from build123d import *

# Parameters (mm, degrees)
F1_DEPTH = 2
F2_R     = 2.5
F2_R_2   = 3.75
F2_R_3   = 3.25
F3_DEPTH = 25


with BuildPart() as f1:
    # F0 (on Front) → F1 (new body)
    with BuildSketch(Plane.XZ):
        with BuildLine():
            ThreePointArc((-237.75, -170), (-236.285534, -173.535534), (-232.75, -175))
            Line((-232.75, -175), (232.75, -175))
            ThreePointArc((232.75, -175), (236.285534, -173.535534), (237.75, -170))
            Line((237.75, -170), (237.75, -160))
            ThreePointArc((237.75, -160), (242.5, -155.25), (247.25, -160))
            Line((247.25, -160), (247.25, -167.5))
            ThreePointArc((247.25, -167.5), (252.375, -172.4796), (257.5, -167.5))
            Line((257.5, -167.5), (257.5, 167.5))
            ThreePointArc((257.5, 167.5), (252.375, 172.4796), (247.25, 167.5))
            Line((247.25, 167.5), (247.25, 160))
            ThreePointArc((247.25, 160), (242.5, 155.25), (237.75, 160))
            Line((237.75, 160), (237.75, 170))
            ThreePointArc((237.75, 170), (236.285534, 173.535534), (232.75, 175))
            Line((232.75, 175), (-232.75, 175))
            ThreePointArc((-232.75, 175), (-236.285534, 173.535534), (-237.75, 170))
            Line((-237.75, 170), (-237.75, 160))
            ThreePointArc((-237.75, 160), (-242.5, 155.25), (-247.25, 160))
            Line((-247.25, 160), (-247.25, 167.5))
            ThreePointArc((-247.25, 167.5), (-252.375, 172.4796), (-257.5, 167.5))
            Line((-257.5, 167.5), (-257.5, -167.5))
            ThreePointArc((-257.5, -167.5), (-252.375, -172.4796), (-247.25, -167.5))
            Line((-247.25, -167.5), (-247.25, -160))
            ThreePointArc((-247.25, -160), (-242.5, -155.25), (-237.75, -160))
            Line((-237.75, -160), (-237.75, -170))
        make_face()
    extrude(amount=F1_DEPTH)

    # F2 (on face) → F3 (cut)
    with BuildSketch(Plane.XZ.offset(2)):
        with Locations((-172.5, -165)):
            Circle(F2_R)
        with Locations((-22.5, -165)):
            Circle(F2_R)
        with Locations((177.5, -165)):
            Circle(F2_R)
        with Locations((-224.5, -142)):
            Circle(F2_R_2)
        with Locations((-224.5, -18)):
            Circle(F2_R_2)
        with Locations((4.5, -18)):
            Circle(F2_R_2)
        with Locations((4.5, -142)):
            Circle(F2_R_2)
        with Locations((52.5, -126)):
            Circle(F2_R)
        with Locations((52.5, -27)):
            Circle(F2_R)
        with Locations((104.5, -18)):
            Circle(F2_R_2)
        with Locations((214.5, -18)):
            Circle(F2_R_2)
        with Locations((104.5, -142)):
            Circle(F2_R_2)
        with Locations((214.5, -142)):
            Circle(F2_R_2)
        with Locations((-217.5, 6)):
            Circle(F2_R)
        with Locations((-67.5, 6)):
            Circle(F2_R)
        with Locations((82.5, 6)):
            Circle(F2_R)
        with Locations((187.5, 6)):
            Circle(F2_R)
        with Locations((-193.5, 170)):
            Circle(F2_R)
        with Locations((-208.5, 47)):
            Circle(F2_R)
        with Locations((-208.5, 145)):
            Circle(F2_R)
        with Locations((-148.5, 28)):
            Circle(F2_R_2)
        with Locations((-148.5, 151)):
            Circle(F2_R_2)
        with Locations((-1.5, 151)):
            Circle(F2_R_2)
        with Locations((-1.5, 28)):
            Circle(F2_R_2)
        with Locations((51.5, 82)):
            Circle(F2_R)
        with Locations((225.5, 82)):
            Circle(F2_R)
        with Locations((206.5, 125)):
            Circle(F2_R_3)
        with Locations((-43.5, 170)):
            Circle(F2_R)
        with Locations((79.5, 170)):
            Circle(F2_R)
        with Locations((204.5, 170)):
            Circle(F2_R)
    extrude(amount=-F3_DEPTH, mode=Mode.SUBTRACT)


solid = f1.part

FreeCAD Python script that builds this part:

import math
import FreeCAD as App
import Part
import Sketcher
from FreeCAD import Vector
Q = App.Units.Quantity

doc = App.newDocument("Part")
body = doc.addObject("PartDesign::Body", "Body")

sketch1 = body.newObject("Sketcher::SketchObject", "Sketch")
sketch1.AttachmentSupport = (doc.getObject("XZ_Plane"), [""])
sketch1.MapMode = "FlatFace"
sketch1.addGeometry(Part.ArcOfCircle(Part.Circle(Vector(-232.8, -170, 0), Vector(0, 0, 1), 5), math.radians(180), math.radians(270)), False)
sketch1.addGeometry(Part.LineSegment(Vector(-232.8, -175, 0), Vector(232.8, -175, 0)), False)
sketch1.addGeometry(Part.ArcOfCircle(Part.Circle(Vector(232.8, -170, 0), Vector(0, 0, 1), 5), math.radians(-90), math.radians(0)), False)
sketch1.addGeometry(Part.LineSegment(Vector(237.8, -170, 0), Vector(237.8, -160, 0)), False)
sketch1.addGeometry(Part.ArcOfCircle(Part.Circle(Vector(242.5, -160, 0), Vector(0, 0, 1), 4.8), math.radians(0), math.radians(180)), False)
sketch1.addGeometry(Part.LineSegment(Vector(247.2, -160, 0), Vector(247.2, -167.5, 0)), False)
sketch1.addGeometry(Part.ArcOfCircle(Part.Circle(Vector(252.4, -167.4, 0), Vector(0, 0, 1), 5.1), math.radians(-178), math.radians(-2)), False)
sketch1.addGeometry(Part.LineSegment(Vector(257.5, -167.5, 0), Vector(257.5, 167.5, 0)), False)
sketch1.addGeometry(Part.ArcOfCircle(Part.Circle(Vector(252.4, 167.4, 0), Vector(0, 0, 1), 5.1), math.radians(2), math.radians(178)), False)
sketch1.addGeometry(Part.LineSegment(Vector(247.2, 167.5, 0), Vector(247.2, 160, 0)), False)
sketch1.addGeometry(Part.ArcOfCircle(Part.Circle(Vector(242.5, 160, 0), Vector(0, 0, 1), 4.8), math.radians(180), math.radians(360)), False)
sketch1.addGeometry(Part.LineSegment(Vector(237.8, 160, 0), Vector(237.8, 170, 0)), False)
sketch1.addGeometry(Part.ArcOfCircle(Part.Circle(Vector(232.8, 170, 0), Vector(0, 0, 1), 5), math.radians(0), math.radians(90)), False)
sketch1.addGeometry(Part.LineSegment(Vector(232.8, 175, 0), Vector(-232.8, 175, 0)), False)
sketch1.addGeometry(Part.ArcOfCircle(Part.Circle(Vector(-232.8, 170, 0), Vector(0, 0, 1), 5), math.radians(90), math.radians(180)), False)
sketch1.addGeometry(Part.LineSegment(Vector(-237.8, 170, 0), Vector(-237.8, 160, 0)), False)
sketch1.addGeometry(Part.ArcOfCircle(Part.Circle(Vector(-242.5, 160, 0), Vector(0, 0, 1), 4.8), math.radians(180), math.radians(360)), False)
sketch1.addGeometry(Part.LineSegment(Vector(-247.2, 160, 0), Vector(-247.2, 167.5, 0)), False)
sketch1.addGeometry(Part.ArcOfCircle(Part.Circle(Vector(-252.4, 167.4, 0), Vector(0, 0, 1), 5.1), math.radians(2), math.radians(178)), False)
sketch1.addGeometry(Part.LineSegment(Vector(-257.5, 167.5, 0), Vector(-257.5, -167.5, 0)), False)
sketch1.addGeometry(Part.ArcOfCircle(Part.Circle(Vector(-252.4, -167.4, 0), Vector(0, 0, 1), 5.1), math.radians(-178), math.radians(-2)), False)
sketch1.addGeometry(Part.LineSegment(Vector(-247.2, -167.5, 0), Vector(-247.2, -160, 0)), False)
sketch1.addGeometry(Part.ArcOfCircle(Part.Circle(Vector(-242.5, -160, 0), Vector(0, 0, 1), 4.8), math.radians(0), math.radians(180)), False)
sketch1.addGeometry(Part.LineSegment(Vector(-237.8, -160, 0), Vector(-237.8, -170, 0)), False)
sketch1.addConstraint(Sketcher.Constraint("Tangent", 0, 2, 1, 1))
sketch1.addConstraint(Sketcher.Constraint("Tangent", 1, 2, 2, 1))
sketch1.addConstraint(Sketcher.Constraint("Tangent", 2, 2, 3, 1))
sketch1.addConstraint(Sketcher.Constraint("Tangent", 3, 2, 4, 2))
sketch1.addConstraint(Sketcher.Constraint("Tangent", 4, 1, 5, 1))
sketch1.addConstraint(Sketcher.Constraint("Coincident", 5, 2, 6, 1))
sketch1.addConstraint(Sketcher.Constraint("Coincident", 6, 2, 7, 1))
sketch1.addConstraint(Sketcher.Constraint("Coincident", 7, 2, 8, 1))
sketch1.addConstraint(Sketcher.Constraint("Coincident", 8, 2, 9, 1))
sketch1.addConstraint(Sketcher.Constraint("Tangent", 9, 2, 10, 2))
sketch1.addConstraint(Sketcher.Constraint("Tangent", 10, 1, 11, 1))
sketch1.addConstraint(Sketcher.Constraint("Tangent", 11, 2, 12, 1))
sketch1.addConstraint(Sketcher.Constraint("Tangent", 12, 2, 13, 1))
sketch1.addConstraint(Sketcher.Constraint("Tangent", 13, 2, 14, 1))
sketch1.addConstraint(Sketcher.Constraint("Tangent", 14, 2, 15, 1))
sketch1.addConstraint(Sketcher.Constraint("Tangent", 15, 2, 16, 2))
sketch1.addConstraint(Sketcher.Constraint("Tangent", 16, 1, 17, 1))
sketch1.addConstraint(Sketcher.Constraint("Coincident", 17, 2, 18, 1))
sketch1.addConstraint(Sketcher.Constraint("Coincident", 18, 2, 19, 1))
sketch1.addConstraint(Sketcher.Constraint("Coincident", 19, 2, 20, 1))
sketch1.addConstraint(Sketcher.Constraint("Coincident", 20, 2, 21, 1))
sketch1.addConstraint(Sketcher.Constraint("Tangent", 21, 2, 22, 2))
sketch1.addConstraint(Sketcher.Constraint("Tangent", 22, 1, 23, 1))
sketch1.addConstraint(Sketcher.Constraint("Tangent", 23, 2, 0, 1))
sketch1.addConstraint(Sketcher.Constraint("Horizontal", 1))
sketch1.addConstraint(Sketcher.Constraint("Vertical", 3))
sketch1.addConstraint(Sketcher.Constraint("Vertical", 5))
sketch1.addConstraint(Sketcher.Constraint("Vertical", 7))
sketch1.addConstraint(Sketcher.Constraint("Vertical", 9))
sketch1.addConstraint(Sketcher.Constraint("Vertical", 11))
sketch1.addConstraint(Sketcher.Constraint("Horizontal", 13))
sketch1.addConstraint(Sketcher.Constraint("Vertical", 15))
sketch1.addConstraint(Sketcher.Constraint("Vertical", 17))
sketch1.addConstraint(Sketcher.Constraint("Vertical", 19))
sketch1.addConstraint(Sketcher.Constraint("Vertical", 21))
sketch1.addConstraint(Sketcher.Constraint("Vertical", 23))
sketch1.addConstraint(Sketcher.Constraint("Equal", 0, 2))
sketch1.addConstraint(Sketcher.Constraint("Equal", 6, 8))
sketch1.addConstraint(Sketcher.Constraint("Equal", 4, 10))
sketch1.addConstraint(Sketcher.Constraint("Equal", 2, 12))
sketch1.addConstraint(Sketcher.Constraint("Equal", 12, 14))
sketch1.addConstraint(Sketcher.Constraint("Equal", 10, 16))
sketch1.addConstraint(Sketcher.Constraint("Equal", 8, 18))
sketch1.addConstraint(Sketcher.Constraint("Equal", 18, 20))
sketch1.addConstraint(Sketcher.Constraint("Equal", 16, 22))
sketch1.addConstraint(Sketcher.Constraint("Symmetric", 0, 3, 12, 3, -1, 1))
sketch1.addConstraint(Sketcher.Constraint("Symmetric", 4, 3, 16, 3, -1, 1))
sketch1.addConstraint(Sketcher.Constraint("Symmetric", 6, 3, 18, 3, -1, 1))
sketch1.addConstraint(Sketcher.Constraint("Symmetric", 8, 3, 20, 3, -1, 1))
sketch1.addConstraint(Sketcher.Constraint("Symmetric", 10, 3, 16, 3, -2))
sketch1.addConstraint(Sketcher.Constraint("Symmetric", 8, 3, 18, 3, -2))
sketch1.addConstraint(Sketcher.Constraint("Horizontal", 4, 3, 22, 3))
sketch1.addConstraint(Sketcher.Constraint("Horizontal", 5, 2, 6, 2))
sketch1.addConstraint(Sketcher.Constraint("Horizontal", 17, 2, 18, 2))
sketch1.addConstraint(Sketcher.Constraint("Radius", 0, Q("5 mm")))
sketch1.addConstraint(Sketcher.Constraint("DistanceY", 3, 1, 3, 2, Q("10 mm")))
sketch1.addConstraint(Sketcher.Constraint("DistanceY", 7, 1, 7, 2, Q("335 mm")))
sketch1.addConstraint(Sketcher.Constraint("Radius", 4, Q("4.75 mm")))
sketch1.addConstraint(Sketcher.Constraint("DistanceX", 1, 1, 1, 2, Q("465.5 mm")))
sketch1.addConstraint(Sketcher.Constraint("DistanceY", 5, 2, 5, 1, Q("7.5 mm")))
sketch1.addConstraint(Sketcher.Constraint("DistanceX", 4, 3, 6, 2, Q("15 mm")))
sketch1.addConstraint(Sketcher.Constraint("Radius", 6, Q("5.127123 mm")))
pad1 = body.newObject("PartDesign::Pad", "Pad")
pad1.Profile = sketch1
pad1.Length = 2

sketch2 = body.newObject("Sketcher::SketchObject", "Sketch001")
sketch2.AttachmentSupport = (doc.getObject("XZ_Plane"), [""])
sketch2.MapMode = "FlatFace"
sketch2.AttachmentOffset = App.Placement(Vector(0, 0, 2), App.Rotation())
sketch2.addGeometry(Part.Circle(Vector(-172.5, -165, 0), Vector(0, 0, 1), 2.5), False)
sketch2.addGeometry(Part.Circle(Vector(-22.5, -165, 0), Vector(0, 0, 1), 2.5), False)
sketch2.addGeometry(Part.Circle(Vector(177.5, -165, 0), Vector(0, 0, 1), 2.5), False)
sketch2.addGeometry(Part.Circle(Vector(-224.5, -142, 0), Vector(0, 0, 1), 3.8), False)
sketch2.addGeometry(Part.Circle(Vector(-224.5, -18, 0), Vector(0, 0, 1), 3.8), False)
sketch2.addGeometry(Part.Circle(Vector(4.5, -18, 0), Vector(0, 0, 1), 3.8), False)
sketch2.addGeometry(Part.Circle(Vector(4.5, -142, 0), Vector(0, 0, 1), 3.8), False)
sketch2.addGeometry(Part.Circle(Vector(52.5, -126, 0), Vector(0, 0, 1), 2.5), False)
sketch2.addGeometry(Part.Circle(Vector(52.5, -27, 0), Vector(0, 0, 1), 2.5), False)
sketch2.addGeometry(Part.Circle(Vector(104.5, -18, 0), Vector(0, 0, 1), 3.8), False)
sketch2.addGeometry(Part.Circle(Vector(214.5, -18, 0), Vector(0, 0, 1), 3.8), False)
sketch2.addGeometry(Part.Circle(Vector(104.5, -142, 0), Vector(0, 0, 1), 3.8), False)
sketch2.addGeometry(Part.Circle(Vector(214.5, -142, 0), Vector(0, 0, 1), 3.8), False)
sketch2.addGeometry(Part.Circle(Vector(-217.5, 6, 0), Vector(0, 0, 1), 2.5), False)
sketch2.addGeometry(Part.Circle(Vector(-67.5, 6, 0), Vector(0, 0, 1), 2.5), False)
sketch2.addGeometry(Part.Circle(Vector(82.5, 6, 0), Vector(0, 0, 1), 2.5), False)
sketch2.addGeometry(Part.Circle(Vector(187.5, 6, 0), Vector(0, 0, 1), 2.5), False)
sketch2.addGeometry(Part.Circle(Vector(-193.5, 170, 0), Vector(0, 0, 1), 2.5), False)
sketch2.addGeometry(Part.Circle(Vector(-208.5, 47, 0), Vector(0, 0, 1), 2.5), False)
sketch2.addGeometry(Part.Circle(Vector(-208.5, 145, 0), Vector(0, 0, 1), 2.5), False)
sketch2.addGeometry(Part.Circle(Vector(-148.5, 28, 0), Vector(0, 0, 1), 3.8), False)
sketch2.addGeometry(Part.Circle(Vector(-148.5, 151, 0), Vector(0, 0, 1), 3.8), False)
sketch2.addGeometry(Part.Circle(Vector(-1.5, 151, 0), Vector(0, 0, 1), 3.8), False)
sketch2.addGeometry(Part.Circle(Vector(-1.5, 28, 0), Vector(0, 0, 1), 3.8), False)
sketch2.addGeometry(Part.Circle(Vector(51.5, 82, 0), Vector(0, 0, 1), 2.5), False)
sketch2.addGeometry(Part.Circle(Vector(225.5, 82, 0), Vector(0, 0, 1), 2.5), False)
sketch2.addGeometry(Part.Circle(Vector(206.5, 125, 0), Vector(0, 0, 1), 3.2), False)
sketch2.addGeometry(Part.Circle(Vector(-43.5, 170, 0), Vector(0, 0, 1), 2.5), False)
sketch2.addGeometry(Part.Circle(Vector(79.5, 170, 0), Vector(0, 0, 1), 2.5), False)
sketch2.addGeometry(Part.Circle(Vector(204.5, 170, 0), Vector(0, 0, 1), 2.5), False)
sketch2.addConstraint(Sketcher.Constraint("Equal", 0, 1))
sketch2.addConstraint(Sketcher.Constraint("Equal", 1, 2))
sketch2.addConstraint(Sketcher.Constraint("Equal", 3, 4))
sketch2.addConstraint(Sketcher.Constraint("Equal", 4, 5))
sketch2.addConstraint(Sketcher.Constraint("Equal", 5, 6))
sketch2.addConstraint(Sketcher.Constraint("Equal", 2, 7))
sketch2.addConstraint(Sketcher.Constraint("Equal", 7, 8))
sketch2.addConstraint(Sketcher.Constraint("Equal", 6, 9))
sketch2.addConstraint(Sketcher.Constraint("Equal", 9, 10))
sketch2.addConstraint(Sketcher.Constraint("Equal", 10, 11))
sketch2.addConstraint(Sketcher.Constraint("Equal", 11, 12))
sketch2.addConstraint(Sketcher.Constraint("Equal", 8, 13))
sketch2.addConstraint(Sketcher.Constraint("Equal", 13, 14))
sketch2.addConstraint(Sketcher.Constraint("Equal", 14, 15))
sketch2.addConstraint(Sketcher.Constraint("Equal", 15, 16))
sketch2.addConstraint(Sketcher.Constraint("Equal", 16, 17))
sketch2.addConstraint(Sketcher.Constraint("Equal", 17, 18))
sketch2.addConstraint(Sketcher.Constraint("Equal", 18, 19))
sketch2.addConstraint(Sketcher.Constraint("Equal", 12, 20))
sketch2.addConstraint(Sketcher.Constraint("Equal", 20, 21))
sketch2.addConstraint(Sketcher.Constraint("Equal", 21, 22))
sketch2.addConstraint(Sketcher.Constraint("Equal", 22, 23))
sketch2.addConstraint(Sketcher.Constraint("Equal", 19, 24))
sketch2.addConstraint(Sketcher.Constraint("Equal", 24, 25))
sketch2.addConstraint(Sketcher.Constraint("Equal", 25, 27))
sketch2.addConstraint(Sketcher.Constraint("Equal", 27, 28))
sketch2.addConstraint(Sketcher.Constraint("Equal", 28, 29))
sketch2.addConstraint(Sketcher.Constraint("Horizontal", 0, 3, 1, 3))
sketch2.addConstraint(Sketcher.Constraint("Horizontal", 1, 3, 2, 3))
sketch2.addConstraint(Sketcher.Constraint("Horizontal", 4, 3, 5, 3))
sketch2.addConstraint(Sketcher.Constraint("Horizontal", 3, 3, 6, 3))
sketch2.addConstraint(Sketcher.Constraint("Horizontal", 5, 3, 9, 3))
sketch2.addConstraint(Sketcher.Constraint("Horizontal", 9, 3, 10, 3))
sketch2.addConstraint(Sketcher.Constraint("Horizontal", 6, 3, 11, 3))
sketch2.addConstraint(Sketcher.Constraint("Horizontal", 11, 3, 12, 3))
sketch2.addConstraint(Sketcher.Constraint("Horizontal", 13, 3, 14, 3))
sketch2.addConstraint(Sketcher.Constraint("Horizontal", 14, 3, 15, 3))
sketch2.addConstraint(Sketcher.Constraint("Horizontal", 15, 3, 16, 3))
sketch2.addConstraint(Sketcher.Constraint("Horizontal", 21, 3, 22, 3))
sketch2.addConstraint(Sketcher.Constraint("Horizontal", 20, 3, 23, 3))
sketch2.addConstraint(Sketcher.Constraint("Horizontal", 24, 3, 25, 3))
sketch2.addConstraint(Sketcher.Constraint("Horizontal", 17, 3, 27, 3))
sketch2.addConstraint(Sketcher.Constraint("Horizontal", 27, 3, 28, 3))
sketch2.addConstraint(Sketcher.Constraint("Horizontal", 28, 3, 29, 3))
sketch2.addConstraint(Sketcher.Constraint("Vertical", 3, 3, 4, 3))
sketch2.addConstraint(Sketcher.Constraint("Vertical", 5, 3, 6, 3))
sketch2.addConstraint(Sketcher.Constraint("Vertical", 7, 3, 8, 3))
sketch2.addConstraint(Sketcher.Constraint("Vertical", 9, 3, 11, 3))
sketch2.addConstraint(Sketcher.Constraint("Vertical", 10, 3, 12, 3))
sketch2.addConstraint(Sketcher.Constraint("Vertical", 18, 3, 19, 3))
sketch2.addConstraint(Sketcher.Constraint("Vertical", 20, 3, 21, 3))
sketch2.addConstraint(Sketcher.Constraint("Vertical", 22, 3, 23, 3))
sketch2.addConstraint(Sketcher.Constraint("Diameter", 0, Q("5 mm")))
sketch2.addConstraint(Sketcher.Constraint("Diameter", 3, Q("7.5 mm")))
sketch2.addConstraint(Sketcher.Constraint("Diameter", 26, Q("6.5 mm")))
sketch2.addConstraint(Sketcher.Constraint("DistanceY", 0, 3, -1, 1, Q("165 mm")))
sketch2.addConstraint(Sketcher.Constraint("DistanceY", 3, 3, -1, 1, Q("142 mm")))
sketch2.addConstraint(Sketcher.Constraint("DistanceY", 4, 3, -1, 1, Q("18 mm")))
sketch2.addConstraint(Sketcher.Constraint("DistanceY", 7, 3, -1, 1, Q("126 mm")))
sketch2.addConstraint(Sketcher.Constraint("DistanceY", 8, 3, -1, 1, Q("27 mm")))
sketch2.addConstraint(Sketcher.Constraint("DistanceY", -1, 1, 13, 3, Q("6 mm")))
sketch2.addConstraint(Sketcher.Constraint("DistanceY", -1, 1, 17, 3, Q("170 mm")))
sketch2.addConstraint(Sketcher.Constraint("DistanceY", -1, 1, 18, 3, Q("47 mm")))
sketch2.addConstraint(Sketcher.Constraint("DistanceY", -1, 1, 19, 3, Q("145 mm")))
sketch2.addConstraint(Sketcher.Constraint("DistanceY", -1, 1, 20, 3, Q("28 mm")))
sketch2.addConstraint(Sketcher.Constraint("DistanceY", -1, 1, 21, 3, Q("151 mm")))
sketch2.addConstraint(Sketcher.Constraint("DistanceY", -1, 1, 24, 3, Q("82 mm")))
sketch2.addConstraint(Sketcher.Constraint("DistanceY", -1, 1, 26, 3, Q("125 mm")))
sketch2.addConstraint(Sketcher.Constraint("DistanceX", 0, 3, 1, 3, Q("150 mm")))
sketch2.addConstraint(Sketcher.Constraint("DistanceX", 1, 3, 2, 3, Q("200 mm")))
sketch2.addConstraint(Sketcher.Constraint("DistanceX", 3, 3, 0, 3, Q("52 mm")))
sketch2.addConstraint(Sketcher.Constraint("DistanceX", 1, 3, 5, 3, Q("27 mm")))
sketch2.addConstraint(Sketcher.Constraint("DistanceX", 6, 3, 7, 3, Q("48 mm")))
sketch2.addConstraint(Sketcher.Constraint("DistanceX", 8, 3, 9, 3, Q("52 mm")))
sketch2.addConstraint(Sketcher.Constraint("DistanceX", 9, 3, 10, 3, Q("110 mm")))
sketch2.addConstraint(Sketcher.Constraint("DistanceX", 4, 3, 13, 3, Q("7 mm")))
sketch2.addConstraint(Sketcher.Constraint("DistanceX", 14, 3, 5, 3, Q("72 mm")))
sketch2.addConstraint(Sketcher.Constraint("DistanceX", 15, 3, 9, 3, Q("22 mm")))
sketch2.addConstraint(Sketcher.Constraint("DistanceX", 16, 3, 10, 3, Q("27 mm")))
sketch2.addConstraint(Sketcher.Constraint("DistanceX", 13, 3, 17, 3, Q("24 mm")))
sketch2.addConstraint(Sketcher.Constraint("DistanceX", 13, 3, 18, 3, Q("9 mm")))
sketch2.addConstraint(Sketcher.Constraint("DistanceX", 18, 3, 20, 3, Q("60 mm")))
sketch2.addConstraint(Sketcher.Constraint("DistanceX", 21, 3, 22, 3, Q("147 mm")))
sketch2.addConstraint(Sketcher.Constraint("DistanceX", 23, 3, 24, 3, Q("53 mm")))
sketch2.addConstraint(Sketcher.Constraint("DistanceX", 16, 3, 25, 3, Q("38 mm")))
sketch2.addConstraint(Sketcher.Constraint("DistanceX", 26, 3, 25, 3, Q("19 mm")))
sketch2.addConstraint(Sketcher.Constraint("DistanceX", 27, 3, 22, 3, Q("42 mm")))
sketch2.addConstraint(Sketcher.Constraint("DistanceX", 22, 3, 28, 3, Q("81 mm")))
sketch2.addConstraint(Sketcher.Constraint("DistanceX", 29, 3, 26, 3, Q("2 mm")))
sketch2.addConstraint(Sketcher.Constraint("DistanceX", 0, 3, -1, 1, Q("172.5 mm")))
pocket1 = body.newObject("PartDesign::Pocket", "Pocket")
pocket1.Profile = sketch2
pocket1.Length = 25

doc.recompute()
